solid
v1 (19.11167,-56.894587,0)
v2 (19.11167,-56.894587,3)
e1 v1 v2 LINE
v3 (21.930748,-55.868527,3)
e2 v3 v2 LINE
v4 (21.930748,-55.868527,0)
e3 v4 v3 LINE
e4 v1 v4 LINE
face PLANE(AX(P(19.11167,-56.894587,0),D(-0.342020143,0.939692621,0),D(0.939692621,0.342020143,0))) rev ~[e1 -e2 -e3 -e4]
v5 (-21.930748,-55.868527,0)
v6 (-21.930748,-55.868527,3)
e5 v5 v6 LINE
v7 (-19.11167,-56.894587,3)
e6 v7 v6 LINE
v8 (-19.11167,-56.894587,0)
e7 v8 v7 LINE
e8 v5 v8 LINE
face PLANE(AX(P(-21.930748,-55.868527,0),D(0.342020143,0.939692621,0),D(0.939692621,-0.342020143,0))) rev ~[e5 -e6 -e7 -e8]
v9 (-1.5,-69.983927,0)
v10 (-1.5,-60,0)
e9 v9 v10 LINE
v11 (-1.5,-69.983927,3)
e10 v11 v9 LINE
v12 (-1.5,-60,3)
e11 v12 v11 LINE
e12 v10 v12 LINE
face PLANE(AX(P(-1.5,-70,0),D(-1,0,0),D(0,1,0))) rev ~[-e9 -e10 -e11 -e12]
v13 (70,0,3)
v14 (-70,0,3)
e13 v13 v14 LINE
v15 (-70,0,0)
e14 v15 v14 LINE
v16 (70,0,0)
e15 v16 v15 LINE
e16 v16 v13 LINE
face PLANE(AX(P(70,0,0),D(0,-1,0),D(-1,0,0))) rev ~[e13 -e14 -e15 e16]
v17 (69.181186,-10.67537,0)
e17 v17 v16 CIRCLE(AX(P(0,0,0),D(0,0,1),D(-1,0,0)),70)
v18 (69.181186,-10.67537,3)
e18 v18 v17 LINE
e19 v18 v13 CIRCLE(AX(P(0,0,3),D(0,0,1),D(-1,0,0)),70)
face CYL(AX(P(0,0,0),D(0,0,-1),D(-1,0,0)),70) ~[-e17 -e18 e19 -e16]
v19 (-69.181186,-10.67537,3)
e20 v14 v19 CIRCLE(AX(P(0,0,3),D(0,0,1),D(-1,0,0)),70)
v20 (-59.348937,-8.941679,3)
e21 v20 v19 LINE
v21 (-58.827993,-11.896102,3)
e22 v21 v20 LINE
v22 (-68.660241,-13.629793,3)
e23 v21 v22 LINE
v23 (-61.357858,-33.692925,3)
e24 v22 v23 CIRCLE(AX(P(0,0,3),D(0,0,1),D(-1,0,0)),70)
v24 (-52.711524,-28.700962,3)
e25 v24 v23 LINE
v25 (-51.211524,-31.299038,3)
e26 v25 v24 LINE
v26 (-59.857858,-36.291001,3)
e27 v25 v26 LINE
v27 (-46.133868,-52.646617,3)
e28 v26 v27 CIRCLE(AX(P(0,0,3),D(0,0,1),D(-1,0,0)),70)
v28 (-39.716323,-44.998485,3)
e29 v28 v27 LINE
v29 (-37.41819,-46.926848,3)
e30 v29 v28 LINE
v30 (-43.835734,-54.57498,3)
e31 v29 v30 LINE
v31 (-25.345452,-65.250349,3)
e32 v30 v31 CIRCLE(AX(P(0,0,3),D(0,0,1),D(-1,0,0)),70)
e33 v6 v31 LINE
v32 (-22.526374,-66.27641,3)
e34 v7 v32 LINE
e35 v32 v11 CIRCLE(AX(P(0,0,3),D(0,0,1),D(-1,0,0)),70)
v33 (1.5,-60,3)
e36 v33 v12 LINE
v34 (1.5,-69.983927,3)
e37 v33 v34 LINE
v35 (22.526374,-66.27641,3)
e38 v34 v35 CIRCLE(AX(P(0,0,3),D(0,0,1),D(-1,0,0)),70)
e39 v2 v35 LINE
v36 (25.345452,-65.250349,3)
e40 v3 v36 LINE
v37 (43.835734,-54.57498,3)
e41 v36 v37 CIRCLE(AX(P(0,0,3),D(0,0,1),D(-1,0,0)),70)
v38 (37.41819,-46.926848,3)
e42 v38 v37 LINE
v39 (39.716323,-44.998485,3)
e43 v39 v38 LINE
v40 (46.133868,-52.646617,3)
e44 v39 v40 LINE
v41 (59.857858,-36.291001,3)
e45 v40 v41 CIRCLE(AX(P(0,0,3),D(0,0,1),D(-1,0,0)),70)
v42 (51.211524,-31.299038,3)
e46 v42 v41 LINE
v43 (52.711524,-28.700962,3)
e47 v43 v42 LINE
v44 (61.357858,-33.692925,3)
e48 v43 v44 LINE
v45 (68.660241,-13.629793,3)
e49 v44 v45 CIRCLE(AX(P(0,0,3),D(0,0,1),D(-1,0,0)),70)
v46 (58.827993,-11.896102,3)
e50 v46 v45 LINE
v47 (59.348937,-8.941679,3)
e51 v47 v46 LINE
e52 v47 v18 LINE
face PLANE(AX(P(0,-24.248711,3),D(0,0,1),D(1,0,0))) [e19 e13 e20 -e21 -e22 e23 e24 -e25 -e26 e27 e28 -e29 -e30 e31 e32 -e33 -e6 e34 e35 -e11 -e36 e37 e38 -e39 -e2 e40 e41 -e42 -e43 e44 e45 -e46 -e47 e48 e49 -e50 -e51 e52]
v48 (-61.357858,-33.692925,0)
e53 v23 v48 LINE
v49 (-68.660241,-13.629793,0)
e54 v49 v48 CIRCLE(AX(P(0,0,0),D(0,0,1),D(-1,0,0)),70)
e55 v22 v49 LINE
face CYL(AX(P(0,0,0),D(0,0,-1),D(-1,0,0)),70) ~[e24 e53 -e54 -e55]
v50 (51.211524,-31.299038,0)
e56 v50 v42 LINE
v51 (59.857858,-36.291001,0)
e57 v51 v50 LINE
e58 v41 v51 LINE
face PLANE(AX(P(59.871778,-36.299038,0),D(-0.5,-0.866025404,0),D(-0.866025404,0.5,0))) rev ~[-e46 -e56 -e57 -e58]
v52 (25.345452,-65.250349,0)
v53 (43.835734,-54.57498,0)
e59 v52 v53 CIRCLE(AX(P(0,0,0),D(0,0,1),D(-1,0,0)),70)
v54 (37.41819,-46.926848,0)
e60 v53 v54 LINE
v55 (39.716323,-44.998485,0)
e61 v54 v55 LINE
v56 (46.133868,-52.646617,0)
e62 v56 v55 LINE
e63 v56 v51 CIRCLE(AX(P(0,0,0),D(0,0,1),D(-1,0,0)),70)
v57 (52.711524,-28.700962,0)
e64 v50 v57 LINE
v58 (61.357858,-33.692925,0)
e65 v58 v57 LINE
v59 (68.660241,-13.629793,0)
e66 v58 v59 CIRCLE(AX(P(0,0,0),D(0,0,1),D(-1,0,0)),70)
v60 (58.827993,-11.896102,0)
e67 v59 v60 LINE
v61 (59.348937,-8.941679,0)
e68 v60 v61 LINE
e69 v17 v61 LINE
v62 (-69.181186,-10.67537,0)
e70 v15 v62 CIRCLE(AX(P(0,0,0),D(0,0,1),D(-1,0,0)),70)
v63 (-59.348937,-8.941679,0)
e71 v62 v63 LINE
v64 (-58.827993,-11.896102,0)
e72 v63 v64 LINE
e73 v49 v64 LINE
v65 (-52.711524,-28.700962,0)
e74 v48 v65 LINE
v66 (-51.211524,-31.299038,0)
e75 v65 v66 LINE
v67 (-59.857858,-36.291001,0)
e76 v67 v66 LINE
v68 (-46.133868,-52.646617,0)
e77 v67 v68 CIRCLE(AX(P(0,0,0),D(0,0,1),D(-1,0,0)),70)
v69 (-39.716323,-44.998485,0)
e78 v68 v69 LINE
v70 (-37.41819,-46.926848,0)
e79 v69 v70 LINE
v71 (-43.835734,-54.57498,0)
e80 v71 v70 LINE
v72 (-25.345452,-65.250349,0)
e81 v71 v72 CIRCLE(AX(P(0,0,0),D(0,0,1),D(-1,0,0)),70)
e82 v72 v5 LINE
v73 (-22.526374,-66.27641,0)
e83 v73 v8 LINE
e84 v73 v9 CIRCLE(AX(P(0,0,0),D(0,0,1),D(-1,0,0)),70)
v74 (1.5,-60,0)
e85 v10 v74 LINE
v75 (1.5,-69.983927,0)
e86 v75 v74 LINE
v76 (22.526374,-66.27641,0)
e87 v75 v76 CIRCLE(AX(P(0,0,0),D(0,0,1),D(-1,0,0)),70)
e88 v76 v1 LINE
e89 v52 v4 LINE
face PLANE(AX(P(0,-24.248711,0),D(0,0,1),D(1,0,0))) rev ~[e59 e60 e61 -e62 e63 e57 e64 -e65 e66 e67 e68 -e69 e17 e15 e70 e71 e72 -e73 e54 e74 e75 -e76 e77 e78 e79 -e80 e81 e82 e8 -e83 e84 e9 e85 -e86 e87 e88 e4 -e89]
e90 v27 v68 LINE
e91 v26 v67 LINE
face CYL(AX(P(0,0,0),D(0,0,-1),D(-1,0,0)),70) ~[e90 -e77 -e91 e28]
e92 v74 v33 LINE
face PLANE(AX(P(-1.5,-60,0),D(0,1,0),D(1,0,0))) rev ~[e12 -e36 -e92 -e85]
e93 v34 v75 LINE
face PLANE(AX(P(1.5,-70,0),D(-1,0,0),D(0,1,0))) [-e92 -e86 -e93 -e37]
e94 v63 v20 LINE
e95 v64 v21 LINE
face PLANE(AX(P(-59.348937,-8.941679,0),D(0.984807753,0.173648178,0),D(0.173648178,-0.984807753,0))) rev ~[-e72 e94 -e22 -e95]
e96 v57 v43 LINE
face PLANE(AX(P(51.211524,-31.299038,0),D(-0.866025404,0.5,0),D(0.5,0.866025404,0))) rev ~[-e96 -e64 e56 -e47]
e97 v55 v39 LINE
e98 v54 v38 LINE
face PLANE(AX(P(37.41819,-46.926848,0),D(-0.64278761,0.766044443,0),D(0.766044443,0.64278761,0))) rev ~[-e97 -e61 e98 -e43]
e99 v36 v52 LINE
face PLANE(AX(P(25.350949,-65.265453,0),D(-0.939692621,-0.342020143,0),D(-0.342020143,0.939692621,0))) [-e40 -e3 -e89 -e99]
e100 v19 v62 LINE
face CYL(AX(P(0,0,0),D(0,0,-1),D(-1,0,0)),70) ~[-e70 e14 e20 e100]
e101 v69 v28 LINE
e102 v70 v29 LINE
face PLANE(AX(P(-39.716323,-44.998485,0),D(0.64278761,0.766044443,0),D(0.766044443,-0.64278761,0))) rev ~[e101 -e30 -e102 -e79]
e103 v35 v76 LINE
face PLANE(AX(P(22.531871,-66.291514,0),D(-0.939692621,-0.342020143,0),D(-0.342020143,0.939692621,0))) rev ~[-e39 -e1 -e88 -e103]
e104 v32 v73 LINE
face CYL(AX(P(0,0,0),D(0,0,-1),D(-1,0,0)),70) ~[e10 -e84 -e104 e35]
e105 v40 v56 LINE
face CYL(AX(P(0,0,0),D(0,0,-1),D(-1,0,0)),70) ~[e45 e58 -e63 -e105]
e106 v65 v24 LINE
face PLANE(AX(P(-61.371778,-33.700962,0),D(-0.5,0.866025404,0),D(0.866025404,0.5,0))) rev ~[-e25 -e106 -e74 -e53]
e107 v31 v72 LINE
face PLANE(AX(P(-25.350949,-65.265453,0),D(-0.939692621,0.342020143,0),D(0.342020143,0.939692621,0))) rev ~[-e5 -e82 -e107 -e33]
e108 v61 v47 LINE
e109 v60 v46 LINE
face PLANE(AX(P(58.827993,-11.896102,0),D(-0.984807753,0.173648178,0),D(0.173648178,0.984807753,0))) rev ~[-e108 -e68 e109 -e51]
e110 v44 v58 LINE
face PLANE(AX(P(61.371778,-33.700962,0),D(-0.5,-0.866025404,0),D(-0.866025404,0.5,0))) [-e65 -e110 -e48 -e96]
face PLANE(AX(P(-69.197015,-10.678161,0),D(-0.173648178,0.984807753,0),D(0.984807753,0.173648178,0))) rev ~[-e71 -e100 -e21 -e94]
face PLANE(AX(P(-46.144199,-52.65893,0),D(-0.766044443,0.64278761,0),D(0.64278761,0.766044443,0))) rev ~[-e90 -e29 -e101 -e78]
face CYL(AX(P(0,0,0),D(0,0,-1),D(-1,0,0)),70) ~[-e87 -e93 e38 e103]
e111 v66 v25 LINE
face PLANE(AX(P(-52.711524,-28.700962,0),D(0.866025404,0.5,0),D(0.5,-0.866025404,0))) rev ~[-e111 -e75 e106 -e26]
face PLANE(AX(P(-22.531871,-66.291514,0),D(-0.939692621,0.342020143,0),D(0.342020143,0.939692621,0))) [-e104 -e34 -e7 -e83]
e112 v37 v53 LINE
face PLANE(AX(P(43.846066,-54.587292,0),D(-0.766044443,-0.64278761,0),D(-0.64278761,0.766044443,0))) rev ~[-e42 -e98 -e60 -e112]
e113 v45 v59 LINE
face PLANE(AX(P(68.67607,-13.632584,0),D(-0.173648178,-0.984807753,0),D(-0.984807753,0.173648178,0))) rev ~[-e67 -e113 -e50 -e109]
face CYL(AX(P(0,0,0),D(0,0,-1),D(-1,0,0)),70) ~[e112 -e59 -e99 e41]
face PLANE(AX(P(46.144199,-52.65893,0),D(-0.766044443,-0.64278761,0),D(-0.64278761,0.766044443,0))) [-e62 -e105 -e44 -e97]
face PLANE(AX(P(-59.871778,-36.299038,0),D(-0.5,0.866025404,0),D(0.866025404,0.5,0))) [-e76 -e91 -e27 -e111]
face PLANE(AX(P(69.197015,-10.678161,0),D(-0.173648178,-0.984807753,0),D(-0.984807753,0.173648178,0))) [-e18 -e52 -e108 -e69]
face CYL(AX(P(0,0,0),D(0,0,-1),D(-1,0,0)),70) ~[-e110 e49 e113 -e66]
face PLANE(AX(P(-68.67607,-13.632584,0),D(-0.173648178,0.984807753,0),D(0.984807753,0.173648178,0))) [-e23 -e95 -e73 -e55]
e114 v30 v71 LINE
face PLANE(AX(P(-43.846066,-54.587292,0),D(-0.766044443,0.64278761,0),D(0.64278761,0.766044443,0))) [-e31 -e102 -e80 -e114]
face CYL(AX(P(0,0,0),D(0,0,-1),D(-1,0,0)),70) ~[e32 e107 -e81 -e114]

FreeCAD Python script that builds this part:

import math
import FreeCAD as App
import Part
import Sketcher
from FreeCAD import Vector

doc = App.newDocument("Part")
body = doc.addObject("PartDesign::Body", "Body")

sketch1 = doc.addObject("Sketcher::SketchObject", "Sketch")
body.addObject(sketch1)
sketch1.AttachmentSupport = (doc.XY_Plane, [""])
sketch1.MapMode = "FlatFace"
sketch1.addGeometry([
    Part.LineSegment(Vector(70, 0, 0), Vector(-70, 0, 0)),
    Part.ArcOfCircle(Part.Circle(Vector(0, 0, 0), Vector(0, 0, 1), 70), math.radians(180), math.radians(360)),
], False)
sketch1.addConstraint([
    Sketcher.Constraint("Coincident", 0, 1, 1, 2),
    Sketcher.Constraint("Coincident", 1, 1, 0, 2),
    Sketcher.Constraint("Horizontal", 0),
    Sketcher.Constraint("Coincident", 1, 3, -1, 1),
    Sketcher.Constraint("PointOnObject", 0, 1, -1),
    Sketcher.Constraint("Radius", 1, 70.0),
])
pad1 = doc.addObject("PartDesign::Pad", "Pad")
body.addObject(pad1)
pad1.Profile = sketch1
pad1.Length = 3

sketch2 = doc.addObject("Sketcher::SketchObject", "Sketch001")
body.addObject(sketch2)
sketch2.AttachmentSupport = (doc.XY_Plane, [""])
sketch2.MapMode = "FlatFace"
sketch2.addGeometry([
    Part.LineSegment(Vector(-1.5, -60, 0), Vector(-1.5, -70, 0)),
    Part.LineSegment(Vector(-1.5, -70, 0), Vector(1.5, -70, 0)),
    Part.LineSegment(Vector(1.5, -70, 0), Vector(1.5, -60, 0)),
    Part.LineSegment(Vector(1.5, -60, 0), Vector(-1.5, -60, 0)),
], False)
sketch2.addConstraint([
    Sketcher.Constraint("Coincident", 0, 2, 1, 1),
    Sketcher.Constraint("Coincident", 1, 2, 2, 1),
    Sketcher.Constraint("Coincident", 2, 2, 3, 1),
    Sketcher.Constraint("Coincident", 3, 2, 0, 1),
    Sketcher.Constraint("Vertical", 0),
    Sketcher.Constraint("Horizontal", 1),
    Sketcher.Constraint("Vertical", 2),
    Sketcher.Constraint("Horizontal", 3),
    Sketcher.Constraint("DistanceX", 1, 1, 1, 2, 3.0),
    Sketcher.Constraint("DistanceY", 0, 2, 0, 1, 10.0),
    Sketcher.Constraint("DistanceY", 0, 2, -1, 1, 70.0),
    Sketcher.Constraint("DistanceX", 0, 2, -1, 1, 1.5),
])
pocket1 = doc.addObject("PartDesign::Pocket", "Pocket")
body.addObject(pocket1)
pocket1.Profile = sketch2
pocket1.Type = "ThroughAll"
pocket1.Reversed = True
doc.recompute()

polarpattern = doc.addObject("PartDesign::PolarPattern", "PolarPattern")
body.addObject(polarpattern)
polarpattern.Originals = [pocket1]
polarpattern.Axis = (doc.Z_Axis, [""])
polarpattern.Angle = 80
polarpattern.Occurrences = 5
polarpattern.Reversed = True
body.Tip = polarpattern
doc.recompute()

polarpattern2 = doc.addObject("PartDesign::PolarPattern", "PolarPattern001")
body.addObject(polarpattern2)
polarpattern2.Originals = [pocket1]
polarpattern2.Axis = (doc.Z_Axis, [""])
polarpattern2.Angle = 80
polarpattern2.Occurrences = 5
body.Tip = polarpattern2

doc.recompute()
